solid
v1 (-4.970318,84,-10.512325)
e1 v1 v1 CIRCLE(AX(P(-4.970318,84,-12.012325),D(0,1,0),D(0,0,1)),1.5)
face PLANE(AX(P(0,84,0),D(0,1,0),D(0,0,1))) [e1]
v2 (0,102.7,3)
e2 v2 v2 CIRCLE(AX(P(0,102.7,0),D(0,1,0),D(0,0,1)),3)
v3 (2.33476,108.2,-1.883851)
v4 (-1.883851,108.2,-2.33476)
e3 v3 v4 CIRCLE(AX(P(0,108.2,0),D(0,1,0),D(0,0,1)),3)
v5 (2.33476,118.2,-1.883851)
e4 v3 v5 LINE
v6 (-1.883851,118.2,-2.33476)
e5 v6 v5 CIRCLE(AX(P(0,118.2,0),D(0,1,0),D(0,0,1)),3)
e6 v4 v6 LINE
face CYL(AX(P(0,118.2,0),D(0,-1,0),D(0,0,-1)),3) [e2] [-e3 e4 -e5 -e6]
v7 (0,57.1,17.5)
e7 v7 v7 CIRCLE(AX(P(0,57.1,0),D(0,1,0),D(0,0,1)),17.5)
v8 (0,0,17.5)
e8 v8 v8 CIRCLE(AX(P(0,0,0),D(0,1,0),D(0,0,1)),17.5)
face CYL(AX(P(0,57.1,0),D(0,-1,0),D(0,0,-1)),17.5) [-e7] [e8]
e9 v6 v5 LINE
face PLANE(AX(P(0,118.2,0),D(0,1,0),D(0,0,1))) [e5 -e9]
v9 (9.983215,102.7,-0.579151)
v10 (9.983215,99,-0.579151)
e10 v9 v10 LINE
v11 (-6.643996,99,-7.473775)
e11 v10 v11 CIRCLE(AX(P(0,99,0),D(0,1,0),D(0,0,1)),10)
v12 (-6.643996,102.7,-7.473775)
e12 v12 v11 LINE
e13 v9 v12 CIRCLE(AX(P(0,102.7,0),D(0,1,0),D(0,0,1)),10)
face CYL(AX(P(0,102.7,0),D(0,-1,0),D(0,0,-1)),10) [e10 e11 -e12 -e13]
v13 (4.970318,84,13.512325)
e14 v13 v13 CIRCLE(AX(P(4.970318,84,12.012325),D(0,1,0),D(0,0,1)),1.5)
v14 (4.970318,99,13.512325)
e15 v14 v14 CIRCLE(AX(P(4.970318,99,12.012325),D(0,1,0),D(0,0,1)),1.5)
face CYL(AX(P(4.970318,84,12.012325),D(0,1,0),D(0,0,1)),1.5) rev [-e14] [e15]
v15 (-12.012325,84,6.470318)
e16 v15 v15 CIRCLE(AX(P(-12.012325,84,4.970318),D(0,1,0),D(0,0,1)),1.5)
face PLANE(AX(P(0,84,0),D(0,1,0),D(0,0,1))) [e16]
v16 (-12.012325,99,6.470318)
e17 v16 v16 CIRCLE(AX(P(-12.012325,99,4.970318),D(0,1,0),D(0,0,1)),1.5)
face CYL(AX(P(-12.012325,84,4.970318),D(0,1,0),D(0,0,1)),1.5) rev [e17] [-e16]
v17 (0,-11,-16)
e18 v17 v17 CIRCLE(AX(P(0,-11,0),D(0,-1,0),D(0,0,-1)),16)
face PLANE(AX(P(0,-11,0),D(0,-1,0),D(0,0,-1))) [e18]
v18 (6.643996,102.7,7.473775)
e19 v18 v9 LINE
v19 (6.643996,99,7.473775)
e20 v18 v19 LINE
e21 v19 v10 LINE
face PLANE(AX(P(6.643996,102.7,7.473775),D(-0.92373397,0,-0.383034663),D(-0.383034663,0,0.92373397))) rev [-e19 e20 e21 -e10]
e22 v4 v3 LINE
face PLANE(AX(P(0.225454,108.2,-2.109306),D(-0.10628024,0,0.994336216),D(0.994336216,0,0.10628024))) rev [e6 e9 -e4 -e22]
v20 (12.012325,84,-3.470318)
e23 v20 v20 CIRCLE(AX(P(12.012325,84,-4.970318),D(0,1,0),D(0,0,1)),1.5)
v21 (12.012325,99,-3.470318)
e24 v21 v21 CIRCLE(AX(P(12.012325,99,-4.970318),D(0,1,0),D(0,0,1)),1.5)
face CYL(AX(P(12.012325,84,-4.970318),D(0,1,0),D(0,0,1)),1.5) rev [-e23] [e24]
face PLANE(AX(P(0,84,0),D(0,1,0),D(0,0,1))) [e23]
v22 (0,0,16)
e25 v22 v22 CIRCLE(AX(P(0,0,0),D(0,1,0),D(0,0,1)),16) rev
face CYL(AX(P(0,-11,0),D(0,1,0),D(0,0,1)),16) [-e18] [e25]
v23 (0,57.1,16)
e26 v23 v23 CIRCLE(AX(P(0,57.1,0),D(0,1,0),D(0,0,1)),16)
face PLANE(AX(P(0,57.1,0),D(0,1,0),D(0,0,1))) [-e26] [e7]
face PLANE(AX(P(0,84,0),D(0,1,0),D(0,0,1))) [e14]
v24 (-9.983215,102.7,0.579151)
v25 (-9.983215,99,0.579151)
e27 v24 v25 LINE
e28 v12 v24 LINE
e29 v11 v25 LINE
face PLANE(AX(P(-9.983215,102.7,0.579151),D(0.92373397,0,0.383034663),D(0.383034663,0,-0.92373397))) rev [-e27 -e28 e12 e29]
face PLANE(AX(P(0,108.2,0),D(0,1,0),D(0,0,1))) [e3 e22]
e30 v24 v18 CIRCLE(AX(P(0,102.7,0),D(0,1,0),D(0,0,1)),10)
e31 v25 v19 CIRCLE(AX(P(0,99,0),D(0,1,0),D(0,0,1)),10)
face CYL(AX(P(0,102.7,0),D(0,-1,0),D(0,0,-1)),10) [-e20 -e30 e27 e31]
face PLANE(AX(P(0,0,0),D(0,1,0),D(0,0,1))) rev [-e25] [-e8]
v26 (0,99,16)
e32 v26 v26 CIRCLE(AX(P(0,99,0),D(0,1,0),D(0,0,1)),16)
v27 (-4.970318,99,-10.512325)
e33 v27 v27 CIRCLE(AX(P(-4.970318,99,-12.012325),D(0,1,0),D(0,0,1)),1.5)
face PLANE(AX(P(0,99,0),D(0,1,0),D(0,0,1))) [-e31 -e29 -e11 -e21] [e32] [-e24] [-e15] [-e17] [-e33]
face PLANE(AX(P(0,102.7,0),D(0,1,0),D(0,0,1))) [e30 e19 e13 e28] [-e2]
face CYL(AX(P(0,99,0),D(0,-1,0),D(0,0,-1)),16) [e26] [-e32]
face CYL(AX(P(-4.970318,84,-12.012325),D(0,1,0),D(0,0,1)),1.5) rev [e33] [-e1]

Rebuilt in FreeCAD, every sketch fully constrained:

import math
import FreeCAD as App
import Part
import Sketcher

V = App.Vector
Q = App.Units.Quantity

doc = App.newDocument("Part")
params = doc.addObject("Spreadsheet::Sheet", "Params")
for row, (alias, value) in enumerate([
    ("sketch1_diameter", "35 mm"),
    ("pad1_length", "57.1 mm"),
    ("sketch2_diameter", "32 mm"),
    ("pad2_length", "11 mm"),
    ("sketch3_diameter", "32 mm"),
    ("pad3_length", "41.9 mm"),
    ("sketch4_diameter", "3 mm"),
    ("pocket1_length", "15 mm"),
    ("sketch5_radius", "10 mm"),
    ("pad4_length", "3.7 mm"),
    ("sketch6_diameter", "6 mm"),
    ("pad5_length", "15.5 mm"),
    ("sketch7_radius", "3 mm"),
    ("pocket2_length", "10 mm"),
], start=1):
    params.set(f"A{row}", alias)
    params.set(f"B{row}", "=" + value)
    params.setAlias(f"B{row}", alias)

body = doc.addObject("PartDesign::Body", "Body")

# Sketch on XZ plane
sketch1 = body.newObject("Sketcher::SketchObject", "Sketch")
sketch1.AttachmentSupport = (doc.getObject("XZ_Plane"), [""])
sketch1.MapMode = "FlatFace"
sketch1.addGeometry(Part.Circle(V(0, 0, 0), V(0, 0, 1), 18), False)
sketch1.addConstraint([
    Sketcher.Constraint("Coincident", 0, 3, -1, 1),
    Sketcher.Constraint("Diameter", 0, Q("35 mm")),
])
sketch1.setExpression("Constraints[1]", "Params.sketch1_diameter")
pad1 = body.newObject("PartDesign::Pad", "Pad")
pad1.Profile = sketch1
pad1.setExpression("Length", "Params.pad1_length")
pad1.Reversed = True

# Sketch on XZ plane
sketch2 = body.newObject("Sketcher::SketchObject", "Sketch001")
sketch2.AttachmentSupport = (doc.getObject("XZ_Plane"), [""])
sketch2.MapMode = "FlatFace"
sketch2.addGeometry(Part.Circle(V(0, 0, 0), V(0, 0, 1), 16), False)
sketch2.addConstraint([
    Sketcher.Constraint("Coincident", 0, 3, -1, 1),
    Sketcher.Constraint("Diameter", 0, Q("32 mm")),
])
sketch2.setExpression("Constraints[1]", "Params.sketch2_diameter")
pad2 = body.newObject("PartDesign::Pad", "Pad001")
pad2.Profile = sketch2
pad2.setExpression("Length", "Params.pad2_length")

# Sketch on XZ plane
sketch3 = body.newObject("Sketcher::SketchObject", "Sketch002")
sketch3.AttachmentSupport = (doc.getObject("XZ_Plane"), [""])
sketch3.MapMode = "FlatFace"
sketch3.AttachmentOffset = App.Placement(V(0, 0, -57.1), App.Rotation())
sketch3.addGeometry(Part.Circle(V(0, 0, 0), V(0, 0, 1), 16), False)
sketch3.addConstraint([
    Sketcher.Constraint("Coincident", 0, 3, -1, 1),
    Sketcher.Constraint("Diameter", 0, Q("32 mm")),
])
sketch3.setExpression("Constraints[1]", "Params.sketch3_diameter")
pad3 = body.newObject("PartDesign::Pad", "Pad002")
pad3.Profile = sketch3
pad3.setExpression("Length", "Params.pad3_length")
pad3.Reversed = True

# Sketch on XZ plane
sketch4 = body.newObject("Sketcher::SketchObject", "Sketch003")
sketch4.AttachmentSupport = (doc.getObject("XZ_Plane"), [""])
sketch4.MapMode = "FlatFace"
sketch4.AttachmentOffset = App.Placement(V(0, 0, -99), App.Rotation())
sketch4.addGeometry([
    Part.Circle(V(12, -5, 0), V(0, 0, 1), 1.5),
    Part.Circle(V(-5, -12, 0), V(0, 0, 1), 1.5),
    Part.Circle(V(-12, 5, 0), V(0, 0, 1), 1.5),
    Part.Circle(V(5, 12, 0), V(0, 0, 1), 1.5),
], False)
sketch4.addConstraint([
    Sketcher.Constraint("Equal", 0, 1),
    Sketcher.Constraint("Equal", 1, 2),
    Sketcher.Constraint("Equal", 2, 3),
    Sketcher.Constraint("Symmetric", 0, 3, 2, 3, -1, 1),
    Sketcher.Constraint("Symmetric", 1, 3, 3, 3, -1, 1),
    Sketcher.Constraint("Diameter", 0, Q("3 mm")),
    Sketcher.Constraint("DistanceX", 2, 3, 0, 3, Q("24.024649 mm")),
    Sketcher.Constraint("DistanceY", 1, 3, 3, 3, Q("24.024649 mm")),
    Sketcher.Constraint("DistanceY", 0, 3, -1, 1, Q("4.970318 mm")),
    Sketcher.Constraint("DistanceX", 1, 3, -1, 1, Q("4.970318 mm")),
])
sketch4.setExpression("Constraints[5]", "Params.sketch4_diameter")
pocket1 = body.newObject("PartDesign::Pocket", "Pocket")
pocket1.Profile = sketch4
pocket1.setExpression("Length", "Params.pocket1_length")
pocket1.Reversed = True

# Sketch on XZ plane
sketch5 = body.newObject("Sketcher::SketchObject", "Sketch004")
sketch5.AttachmentSupport = (doc.getObject("XZ_Plane"), [""])
sketch5.MapMode = "FlatFace"
sketch5.AttachmentOffset = App.Placement(V(0, 0, -99), App.Rotation())
sketch5.addGeometry([
    Part.LineSegment(V(-7, -7, 0), V(-10, 1, 0)),
    Part.ArcOfCircle(Part.Circle(V(0, 0, 0), V(0, 0, 1), 10), math.radians(48), math.radians(177)),
    Part.LineSegment(V(7, 7, 0), V(10, -1, 0)),
    Part.ArcOfCircle(Part.Circle(V(0, 0, 0), V(0, 0, 1), 10), math.radians(-132), math.radians(-3)),
], False)
sketch5.addConstraint([
    Sketcher.Constraint("Coincident", 0, 2, 1, 2),
    Sketcher.Constraint("Coincident", 1, 1, 2, 1),
    Sketcher.Constraint("Coincident", 2, 2, 3, 2),
    Sketcher.Constraint("Coincident", 3, 1, 0, 1),
    Sketcher.Constraint("Coincident", 1, 3, -1, 1),
    Sketcher.Constraint("Coincident", 3, 3, -1, 1),
    Sketcher.Constraint("Equal", 1, 3),
    Sketcher.Constraint("Parallel", 0, 2),
    Sketcher.Constraint("Equal", 0, 2),
    Sketcher.Constraint("Radius", 1, Q("10 mm")),
    Sketcher.Constraint("DistanceY", -1, 1, 0, 2, Q("0.579151 mm")),
    Sketcher.Constraint("DistanceX", 0, 2, 1, 1, Q("16.627211 mm")),
])
sketch5.setExpression("Constraints[9]", "Params.sketch5_radius")
pad4 = body.newObject("PartDesign::Pad", "Pad003")
pad4.Profile = sketch5
pad4.setExpression("Length", "Params.pad4_length")
pad4.Reversed = True

# Sketch on XZ plane
sketch6 = body.newObject("Sketcher::SketchObject", "Sketch005")
sketch6.AttachmentSupport = (doc.getObject("XZ_Plane"), [""])
sketch6.MapMode = "FlatFace"
sketch6.AttachmentOffset = App.Placement(V(0, 0, -102.7), App.Rotation())
sketch6.addGeometry(Part.Circle(V(0, 0, 0), V(0, 0, 1), 3), False)
sketch6.addConstraint([
    Sketcher.Constraint("Coincident", 0, 3, -1, 1),
    Sketcher.Constraint("Diameter", 0, Q("6 mm")),
])
sketch6.setExpression("Constraints[1]", "Params.sketch6_diameter")
pad5 = body.newObject("PartDesign::Pad", "Pad004")
pad5.Profile = sketch6
pad5.setExpression("Length", "Params.pad5_length")
pad5.Reversed = True

# Sketch on XZ plane
sketch7 = body.newObject("Sketcher::SketchObject", "Sketch006")
sketch7.AttachmentSupport = (doc.getObject("XZ_Plane"), [""])
sketch7.MapMode = "FlatFace"
sketch7.AttachmentOffset = App.Placement(V(0, 0, -118.2), App.Rotation())
sketch7.addGeometry([
    Part.LineSegment(V(-1.9, -2.3, 0), V(2.3, -1.9, 0)),
    Part.ArcOfCircle(Part.Circle(V(0, 0, 0), V(0, 0, 1), 3), math.radians(-129), math.radians(-39)),
], False)
sketch7.addConstraint([
    Sketcher.Constraint("Coincident", 0, 1, 1, 1),
    Sketcher.Constraint("Coincident", 1, 2, 0, 2),
    Sketcher.Constraint("Coincident", 1, 3, -1, 1),
    Sketcher.Constraint("Radius", 1, Q("3 mm")),
    Sketcher.Constraint("Distance", 0, Q("4.242641 mm")),
    Sketcher.Constraint("DistanceX", 0, 1, -1, 1, Q("1.883851 mm")),
])
sketch7.setExpression("Constraints[3]", "Params.sketch7_radius")
pocket2 = body.newObject("PartDesign::Pocket", "Pocket001")
pocket2.Profile = sketch7
pocket2.setExpression("Length", "Params.pocket2_length")
pocket2.Reversed = True

doc.recompute()
